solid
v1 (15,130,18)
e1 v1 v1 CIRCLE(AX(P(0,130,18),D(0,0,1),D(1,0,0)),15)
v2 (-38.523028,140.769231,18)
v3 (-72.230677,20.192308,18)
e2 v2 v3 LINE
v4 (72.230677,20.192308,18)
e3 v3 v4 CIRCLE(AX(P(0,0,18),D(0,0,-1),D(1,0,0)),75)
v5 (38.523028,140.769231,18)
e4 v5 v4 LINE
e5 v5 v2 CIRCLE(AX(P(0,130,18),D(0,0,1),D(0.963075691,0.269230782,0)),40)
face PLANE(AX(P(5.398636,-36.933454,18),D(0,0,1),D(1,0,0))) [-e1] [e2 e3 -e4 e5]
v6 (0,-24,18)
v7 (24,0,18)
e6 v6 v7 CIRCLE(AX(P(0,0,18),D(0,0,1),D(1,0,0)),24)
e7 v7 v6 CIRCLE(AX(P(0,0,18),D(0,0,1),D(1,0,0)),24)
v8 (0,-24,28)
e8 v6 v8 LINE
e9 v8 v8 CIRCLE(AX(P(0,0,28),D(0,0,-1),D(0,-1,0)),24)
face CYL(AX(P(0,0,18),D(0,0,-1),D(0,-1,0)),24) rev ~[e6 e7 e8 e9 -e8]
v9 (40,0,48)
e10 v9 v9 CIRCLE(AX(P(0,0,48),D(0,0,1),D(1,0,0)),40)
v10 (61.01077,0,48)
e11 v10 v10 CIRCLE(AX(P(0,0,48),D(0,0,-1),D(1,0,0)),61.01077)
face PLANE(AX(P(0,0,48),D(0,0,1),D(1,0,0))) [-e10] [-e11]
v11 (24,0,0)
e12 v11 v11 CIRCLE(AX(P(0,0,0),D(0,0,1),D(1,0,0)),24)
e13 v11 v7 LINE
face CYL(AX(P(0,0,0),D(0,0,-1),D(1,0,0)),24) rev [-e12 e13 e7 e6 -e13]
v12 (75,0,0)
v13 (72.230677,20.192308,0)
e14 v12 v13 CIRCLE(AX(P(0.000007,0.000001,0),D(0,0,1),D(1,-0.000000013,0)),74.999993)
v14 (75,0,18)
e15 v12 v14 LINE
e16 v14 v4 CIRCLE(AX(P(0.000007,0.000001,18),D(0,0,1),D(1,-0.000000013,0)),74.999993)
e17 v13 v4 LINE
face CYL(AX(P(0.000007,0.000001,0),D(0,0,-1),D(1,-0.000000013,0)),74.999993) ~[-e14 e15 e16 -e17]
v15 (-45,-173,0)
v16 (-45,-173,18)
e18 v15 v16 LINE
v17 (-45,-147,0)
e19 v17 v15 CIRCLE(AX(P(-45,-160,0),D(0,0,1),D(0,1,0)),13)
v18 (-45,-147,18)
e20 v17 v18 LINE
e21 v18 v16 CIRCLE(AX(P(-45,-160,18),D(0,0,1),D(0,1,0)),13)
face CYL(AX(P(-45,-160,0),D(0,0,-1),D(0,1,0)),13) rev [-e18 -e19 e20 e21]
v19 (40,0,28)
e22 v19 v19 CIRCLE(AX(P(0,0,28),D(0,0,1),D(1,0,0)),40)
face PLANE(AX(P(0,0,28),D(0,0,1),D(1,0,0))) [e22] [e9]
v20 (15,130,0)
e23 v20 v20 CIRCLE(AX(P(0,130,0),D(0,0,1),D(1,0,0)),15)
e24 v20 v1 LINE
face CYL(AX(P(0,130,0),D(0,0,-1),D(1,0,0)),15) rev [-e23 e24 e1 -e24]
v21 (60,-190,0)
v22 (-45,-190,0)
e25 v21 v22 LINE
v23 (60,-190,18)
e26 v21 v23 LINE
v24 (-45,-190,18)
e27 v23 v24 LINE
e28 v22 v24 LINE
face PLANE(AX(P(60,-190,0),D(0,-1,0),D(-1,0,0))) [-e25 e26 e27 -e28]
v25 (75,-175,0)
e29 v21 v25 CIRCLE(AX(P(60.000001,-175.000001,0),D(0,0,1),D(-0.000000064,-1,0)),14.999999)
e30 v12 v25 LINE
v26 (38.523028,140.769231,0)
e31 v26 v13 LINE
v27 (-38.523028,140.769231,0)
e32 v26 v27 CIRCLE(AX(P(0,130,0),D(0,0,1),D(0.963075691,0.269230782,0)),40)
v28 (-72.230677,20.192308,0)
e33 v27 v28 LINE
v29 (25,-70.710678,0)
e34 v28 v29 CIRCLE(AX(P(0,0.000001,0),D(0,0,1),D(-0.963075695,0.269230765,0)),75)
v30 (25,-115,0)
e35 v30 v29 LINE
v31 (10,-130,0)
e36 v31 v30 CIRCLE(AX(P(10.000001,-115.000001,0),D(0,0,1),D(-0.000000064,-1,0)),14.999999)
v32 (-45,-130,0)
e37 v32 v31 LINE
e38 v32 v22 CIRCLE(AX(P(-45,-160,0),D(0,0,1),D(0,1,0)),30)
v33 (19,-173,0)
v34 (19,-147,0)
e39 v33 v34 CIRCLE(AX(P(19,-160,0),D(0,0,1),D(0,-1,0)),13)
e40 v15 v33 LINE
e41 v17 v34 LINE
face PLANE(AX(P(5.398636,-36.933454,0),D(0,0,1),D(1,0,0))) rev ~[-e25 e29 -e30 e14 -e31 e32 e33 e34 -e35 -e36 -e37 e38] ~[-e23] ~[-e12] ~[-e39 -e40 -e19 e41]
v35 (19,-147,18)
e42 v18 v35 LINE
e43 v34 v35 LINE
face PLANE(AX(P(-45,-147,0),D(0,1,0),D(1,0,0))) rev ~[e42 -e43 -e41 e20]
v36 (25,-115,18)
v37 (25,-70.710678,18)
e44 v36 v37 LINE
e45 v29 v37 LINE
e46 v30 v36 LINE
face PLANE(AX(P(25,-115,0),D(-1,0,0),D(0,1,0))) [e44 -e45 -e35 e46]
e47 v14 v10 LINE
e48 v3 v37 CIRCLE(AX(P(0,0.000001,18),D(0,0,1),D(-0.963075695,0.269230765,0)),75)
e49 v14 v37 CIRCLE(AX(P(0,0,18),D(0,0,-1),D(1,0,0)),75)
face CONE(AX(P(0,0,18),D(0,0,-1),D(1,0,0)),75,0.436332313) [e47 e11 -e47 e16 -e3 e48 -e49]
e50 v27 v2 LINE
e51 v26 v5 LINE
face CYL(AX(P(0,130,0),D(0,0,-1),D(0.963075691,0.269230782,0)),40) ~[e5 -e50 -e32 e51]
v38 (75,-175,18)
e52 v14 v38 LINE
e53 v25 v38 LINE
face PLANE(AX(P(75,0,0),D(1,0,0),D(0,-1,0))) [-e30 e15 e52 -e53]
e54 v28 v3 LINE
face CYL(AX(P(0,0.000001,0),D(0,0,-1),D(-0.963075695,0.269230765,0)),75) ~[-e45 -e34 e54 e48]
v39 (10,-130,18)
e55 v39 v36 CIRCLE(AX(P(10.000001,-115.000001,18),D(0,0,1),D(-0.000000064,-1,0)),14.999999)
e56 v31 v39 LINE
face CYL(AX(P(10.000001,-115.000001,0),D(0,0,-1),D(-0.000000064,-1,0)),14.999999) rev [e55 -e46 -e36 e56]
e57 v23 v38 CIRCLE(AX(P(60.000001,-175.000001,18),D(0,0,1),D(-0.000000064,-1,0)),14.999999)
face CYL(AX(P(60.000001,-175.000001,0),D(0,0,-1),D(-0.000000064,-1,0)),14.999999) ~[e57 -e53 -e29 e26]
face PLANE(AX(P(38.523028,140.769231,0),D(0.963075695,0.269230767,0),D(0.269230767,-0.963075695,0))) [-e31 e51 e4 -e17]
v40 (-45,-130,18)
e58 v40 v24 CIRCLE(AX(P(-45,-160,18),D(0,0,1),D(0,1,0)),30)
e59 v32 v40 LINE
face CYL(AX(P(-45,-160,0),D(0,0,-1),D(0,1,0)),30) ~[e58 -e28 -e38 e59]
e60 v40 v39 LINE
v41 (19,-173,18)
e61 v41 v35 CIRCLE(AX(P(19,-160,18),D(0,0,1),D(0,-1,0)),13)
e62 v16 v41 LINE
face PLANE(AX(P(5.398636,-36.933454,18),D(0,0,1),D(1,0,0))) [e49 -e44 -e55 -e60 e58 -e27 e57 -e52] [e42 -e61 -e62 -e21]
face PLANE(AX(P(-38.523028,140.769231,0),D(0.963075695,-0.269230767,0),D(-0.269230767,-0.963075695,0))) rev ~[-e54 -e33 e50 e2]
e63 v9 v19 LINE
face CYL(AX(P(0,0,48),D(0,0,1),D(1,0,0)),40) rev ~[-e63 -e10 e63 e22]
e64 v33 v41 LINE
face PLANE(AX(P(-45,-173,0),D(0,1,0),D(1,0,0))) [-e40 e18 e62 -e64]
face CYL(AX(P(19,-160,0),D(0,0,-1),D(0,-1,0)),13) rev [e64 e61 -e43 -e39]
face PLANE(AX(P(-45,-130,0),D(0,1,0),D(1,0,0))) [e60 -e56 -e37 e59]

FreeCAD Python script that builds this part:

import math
import FreeCAD as App
import Part
import Sketcher
from FreeCAD import Vector
Q = App.Units.Quantity

doc = App.newDocument("Part")
body = doc.addObject("PartDesign::Body", "Body")

sketch1 = body.newObject("Sketcher::SketchObject", "Sketch")
sketch1.AttachmentSupport = (doc.getObject("XY_Plane"), [""])
sketch1.MapMode = "FlatFace"
sketch1.addGeometry([
    Part.ArcOfCircle(Part.Circle(Vector(0, 0, 0), Vector(0, 0, 1), 75), math.radians(164), math.radians(289)),
    Part.LineSegment(Vector(25, -71, 0), Vector(25, -115, 0)),
    Part.ArcOfCircle(Part.Circle(Vector(10, -115, 0), Vector(0, 0, 1), 15), math.radians(-90), math.radians(0)),
    Part.LineSegment(Vector(10, -130, 0), Vector(-45, -130, 0)),
    Part.ArcOfCircle(Part.Circle(Vector(-45, -160, 0), Vector(0, 0, 1), 30), math.radians(90), math.radians(270)),
    Part.LineSegment(Vector(-45, -190, 0), Vector(60, -190, 0)),
    Part.ArcOfCircle(Part.Circle(Vector(60, -175, 0), Vector(0, 0, 1), 15), math.radians(-90), math.radians(0)),
    Part.LineSegment(Vector(75, -175, 0), Vector(75, 0, 0)),
    Part.ArcOfCircle(Part.Circle(Vector(0, 0, 0), Vector(0, 0, 1), 75), math.radians(0), math.radians(15.62)),
    Part.LineSegment(Vector(72, 20, 0), Vector(39, 141, 0)),
    Part.ArcOfCircle(Part.Circle(Vector(0, 130, 0), Vector(0, 0, 1), 40), math.radians(16), math.radians(164)),
    Part.LineSegment(Vector(-39, 141, 0), Vector(-72, 20, 0)),
    Part.ArcOfCircle(Part.Circle(Vector(-45, -160, 0), Vector(0, 0, 1), 13), math.radians(90), math.radians(270)),
    Part.LineSegment(Vector(-45, -147, 0), Vector(19, -147, 0)),
    Part.ArcOfCircle(Part.Circle(Vector(19, -160, 0), Vector(0, 0, 1), 13), math.radians(-90), math.radians(90)),
    Part.LineSegment(Vector(19, -173, 0), Vector(-45, -173, 0)),
    Part.Circle(Vector(0, 0, 0), Vector(0, 0, 1), 24),
    Part.Circle(Vector(0, 130, 0), Vector(0, 0, 1), 15),
], False)
sketch1.addConstraint([
    Sketcher.Constraint("Coincident", 0, 2, 1, 1),
    Sketcher.Constraint("Tangent", 1, 2, 2, 2),
    Sketcher.Constraint("Tangent", 2, 1, 3, 1),
    Sketcher.Constraint("Tangent", 3, 2, 4, 1),
    Sketcher.Constraint("Tangent", 4, 2, 5, 1),
    Sketcher.Constraint("Tangent", 5, 2, 6, 1),
    Sketcher.Constraint("Tangent", 6, 2, 7, 1),
    Sketcher.Constraint("Tangent", 7, 2, 8, 1),
    Sketcher.Constraint("Tangent", 8, 2, 9, 1),
    Sketcher.Constraint("Tangent", 9, 2, 10, 1),
    Sketcher.Constraint("Tangent", 10, 2, 11, 1),
    Sketcher.Constraint("Tangent", 11, 2, 0, 1),
    Sketcher.Constraint("Tangent", 12, 1, 13, 1),
    Sketcher.Constraint("Tangent", 13, 2, 14, 2),
    Sketcher.Constraint("Tangent", 14, 1, 15, 1),
    Sketcher.Constraint("Tangent", 15, 2, 12, 2),
    Sketcher.Constraint("Vertical", 1),
    Sketcher.Constraint("Horizontal", 3),
    Sketcher.Constraint("Horizontal", 5),
    Sketcher.Constraint("Vertical", 7),
    Sketcher.Constraint("Horizontal", 13),
    Sketcher.Constraint("Horizontal", 15),
    Sketcher.Constraint("Coincident", 0, 3, -1, 1),
    Sketcher.Constraint("Coincident", 8, 3, -1, 1),
    Sketcher.Constraint("Coincident", 16, 3, -1, 1),
    Sketcher.Constraint("Coincident", 12, 3, 4, 3),
    Sketcher.Constraint("Coincident", 17, 3, 10, 3),
    Sketcher.Constraint("Equal", 2, 6),
    Sketcher.Constraint("Equal", 6, 17),
    Sketcher.Constraint("Symmetric", 9, 2, 10, 2, -2),
    Sketcher.Constraint("Diameter", 16, Q("48 mm")),
    Sketcher.Constraint("Diameter", 17, Q("30 mm")),
    Sketcher.Constraint("Radius", 0, Q("75 mm")),
    Sketcher.Constraint("Radius", 4, Q("30 mm")),
    Sketcher.Constraint("Radius", 10, Q("40 mm")),
    Sketcher.Constraint("Radius", 12, Q("13 mm")),
    Sketcher.Constraint("DistanceX", 3, 2, 3, 1, Q("55 mm")),
    Sketcher.Constraint("DistanceX", 5, 1, 5, 2, Q("105 mm")),
    Sketcher.Constraint("DistanceX", 13, 1, 13, 2, Q("64 mm")),
    Sketcher.Constraint("DistanceY", 7, 1, 7, 2, Q("175 mm")),
    Sketcher.Constraint("DistanceY", -1, 1, 10, 3, Q("130 mm")),
])
pad1 = body.newObject("PartDesign::Pad", "Pad")
pad1.Profile = sketch1
pad1.Length = 18

sketch2 = body.newObject("Sketcher::SketchObject", "Sketch001")
sketch2.AttachmentSupport = (doc.getObject("XY_Plane"), [""])
sketch2.MapMode = "FlatFace"
sketch2.AttachmentOffset = App.Placement(Vector(0, 0, 18), App.Rotation())
sketch2.addGeometry(Part.Circle(Vector(0, 0, 0), Vector(0, 0, 1), 75), False)
sketch2.addConstraint([
    Sketcher.Constraint("Coincident", 0, 3, -1, 1),
    Sketcher.Constraint("Diameter", 0, Q("150 mm")),
])
pad2 = body.newObject("PartDesign::Pad", "Pad001")
pad2.Profile = sketch2
pad2.Length = 30
pad2.TaperAngle = -25

sketch3 = body.newObject("Sketcher::SketchObject", "Sketch002")
sketch3.AttachmentSupport = (doc.getObject("XY_Plane"), [""])
sketch3.MapMode = "FlatFace"
sketch3.AttachmentOffset = App.Placement(Vector(0, 0, 48), App.Rotation())
sketch3.addGeometry(Part.Circle(Vector(0, 0, 0), Vector(0, 0, 1), 40), False)
sketch3.addConstraint([
    Sketcher.Constraint("Coincident", 0, 3, -1, 1),
    Sketcher.Constraint("Diameter", 0, Q("80 mm")),
])
pocket1 = body.newObject("PartDesign::Pocket", "Pocket")
pocket1.Profile = sketch3
pocket1.Length = 20

sketch4 = body.newObject("Sketcher::SketchObject", "Sketch003")
sketch4.AttachmentSupport = (doc.getObject("XY_Plane"), [""])
sketch4.MapMode = "FlatFace"
sketch4.AttachmentOffset = App.Placement(Vector(0, 0, 18), App.Rotation())
sketch4.addGeometry(Part.Circle(Vector(0, 0, 0), Vector(0, 0, 1), 24), False)
sketch4.addConstraint([
    Sketcher.Constraint("Coincident", 0, 3, -1, 1),
    Sketcher.Constraint("Diameter", 0, Q("48 mm")),
])
pocket2 = body.newObject("PartDesign::Pocket", "Pocket001")
pocket2.Profile = sketch4
pocket2.Type = "ThroughAll"
pocket2.Reversed = True

doc.recompute()
